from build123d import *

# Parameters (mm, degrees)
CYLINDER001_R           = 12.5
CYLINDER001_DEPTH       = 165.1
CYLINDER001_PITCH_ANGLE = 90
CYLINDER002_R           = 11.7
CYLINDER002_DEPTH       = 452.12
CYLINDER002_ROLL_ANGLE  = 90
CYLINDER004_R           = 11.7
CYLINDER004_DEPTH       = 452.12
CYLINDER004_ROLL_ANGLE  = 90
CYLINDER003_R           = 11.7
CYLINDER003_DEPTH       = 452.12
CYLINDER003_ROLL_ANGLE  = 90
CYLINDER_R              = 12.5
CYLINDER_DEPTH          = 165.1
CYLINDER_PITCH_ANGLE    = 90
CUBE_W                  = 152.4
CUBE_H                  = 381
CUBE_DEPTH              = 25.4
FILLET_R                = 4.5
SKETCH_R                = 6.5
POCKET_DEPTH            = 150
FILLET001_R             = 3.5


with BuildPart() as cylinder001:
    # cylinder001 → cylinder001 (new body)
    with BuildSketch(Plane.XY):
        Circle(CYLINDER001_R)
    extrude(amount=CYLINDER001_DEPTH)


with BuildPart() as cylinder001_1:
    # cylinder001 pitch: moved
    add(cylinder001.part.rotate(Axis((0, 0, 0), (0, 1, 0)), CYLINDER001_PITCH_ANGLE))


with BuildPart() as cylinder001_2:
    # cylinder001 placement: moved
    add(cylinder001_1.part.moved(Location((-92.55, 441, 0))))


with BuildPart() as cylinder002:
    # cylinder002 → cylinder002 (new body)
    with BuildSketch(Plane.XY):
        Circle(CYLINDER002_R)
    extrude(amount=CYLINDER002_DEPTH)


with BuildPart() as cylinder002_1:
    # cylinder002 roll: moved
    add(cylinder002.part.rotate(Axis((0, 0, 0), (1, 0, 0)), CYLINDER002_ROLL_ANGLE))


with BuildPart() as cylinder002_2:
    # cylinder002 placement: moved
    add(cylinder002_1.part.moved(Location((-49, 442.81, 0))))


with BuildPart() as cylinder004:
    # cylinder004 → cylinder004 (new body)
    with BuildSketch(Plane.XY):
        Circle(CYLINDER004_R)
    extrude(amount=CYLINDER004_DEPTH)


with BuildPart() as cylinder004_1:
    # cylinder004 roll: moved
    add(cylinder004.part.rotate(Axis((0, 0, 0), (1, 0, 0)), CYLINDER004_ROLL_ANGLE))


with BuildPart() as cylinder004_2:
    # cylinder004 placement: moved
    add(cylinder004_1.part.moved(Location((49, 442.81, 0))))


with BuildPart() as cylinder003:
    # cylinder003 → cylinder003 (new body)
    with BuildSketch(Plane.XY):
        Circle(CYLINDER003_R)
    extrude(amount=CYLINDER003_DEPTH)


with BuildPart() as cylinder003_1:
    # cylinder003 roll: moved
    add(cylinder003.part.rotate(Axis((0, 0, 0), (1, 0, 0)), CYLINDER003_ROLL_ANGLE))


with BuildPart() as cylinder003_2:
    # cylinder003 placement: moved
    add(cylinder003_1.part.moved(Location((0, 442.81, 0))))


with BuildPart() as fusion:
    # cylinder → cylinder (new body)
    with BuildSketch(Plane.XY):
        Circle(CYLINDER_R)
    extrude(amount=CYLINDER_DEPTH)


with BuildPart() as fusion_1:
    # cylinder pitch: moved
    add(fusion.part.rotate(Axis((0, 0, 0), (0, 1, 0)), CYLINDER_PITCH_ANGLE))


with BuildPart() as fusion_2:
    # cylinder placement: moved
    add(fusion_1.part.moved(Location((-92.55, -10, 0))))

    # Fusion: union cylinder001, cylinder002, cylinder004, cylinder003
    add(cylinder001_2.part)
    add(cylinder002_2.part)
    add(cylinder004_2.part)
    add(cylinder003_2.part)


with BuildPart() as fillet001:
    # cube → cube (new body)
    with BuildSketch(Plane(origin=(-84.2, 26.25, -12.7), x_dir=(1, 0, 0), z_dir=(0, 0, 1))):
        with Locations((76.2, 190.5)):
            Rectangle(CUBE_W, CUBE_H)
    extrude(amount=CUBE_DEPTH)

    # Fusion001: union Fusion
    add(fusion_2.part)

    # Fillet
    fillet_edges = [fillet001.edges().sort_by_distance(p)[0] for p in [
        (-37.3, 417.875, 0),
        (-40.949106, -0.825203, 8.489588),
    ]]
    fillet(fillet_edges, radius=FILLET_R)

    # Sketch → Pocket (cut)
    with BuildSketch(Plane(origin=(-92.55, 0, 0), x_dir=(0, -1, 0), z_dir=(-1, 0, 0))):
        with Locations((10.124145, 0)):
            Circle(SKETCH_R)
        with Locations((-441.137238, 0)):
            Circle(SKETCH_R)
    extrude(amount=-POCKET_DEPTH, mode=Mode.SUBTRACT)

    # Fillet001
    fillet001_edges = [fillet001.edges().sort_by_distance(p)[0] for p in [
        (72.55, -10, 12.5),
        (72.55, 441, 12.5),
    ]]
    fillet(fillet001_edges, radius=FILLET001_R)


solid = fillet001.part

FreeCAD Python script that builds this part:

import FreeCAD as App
import Part
import Sketcher
Q = App.Units.Quantity


def edges_at(feature, points):
    """Names of the edges that pass closest to the given points."""
    edges = feature.Shape.Edges
    near = lambda p: min(range(len(edges)), key=lambda i: edges[i].distToShape(Part.Vertex(*p))[0])
    return sorted({f"Edge{near(p) + 1}" for p in points})

doc = App.newDocument("Part")
body = doc.addObject("PartDesign::Body", "Body")

sketch1 = body.newObject("Sketcher::SketchObject", "Sketch")
sketch1.AttachmentSupport = (doc.getObject("XY_Plane"), [""])
sketch1.MapMode = "FlatFace"
sketch1.addGeometry(Part.Circle(App.Vector(0, 0, 0), App.Vector(0, 0, 1), 12), False)
sketch1.addConstraint([
    Sketcher.Constraint("Coincident", 0, 3, -1, 1),
    Sketcher.Constraint("Diameter", 0, Q("25 mm")),
])
pad1 = body.newObject("PartDesign::Pad", "Pad")
pad1.Profile = sketch1
pad1.Length = 165.1
body2 = doc.addObject("PartDesign::Body", "Body001")
doc.recompute()

body.Placement = App.Placement(App.Vector(0, 0, 0), App.Rotation(App.Vector(0, 1, 0), 90))
boolean = body2.newObject("PartDesign::Boolean", "Boolean")
boolean.Type = "Fuse"
boolean.addObjects([body])
body3 = doc.addObject("PartDesign::Body", "Body002")
doc.recompute()

body2.Placement = App.Placement(App.Vector(-92.55, 441, 0), App.Rotation(App.Vector(0, 0, 1), 0))
boolean2 = body3.newObject("PartDesign::Boolean", "Boolean001")
boolean2.Type = "Fuse"
boolean2.addObjects([body2])
body4 = doc.addObject("PartDesign::Body", "Body003")

sketch2 = body4.newObject("Sketcher::SketchObject", "Sketch001")
sketch2.AttachmentSupport = (doc.getObject("XY_Plane003"), [""])
sketch2.MapMode = "FlatFace"
sketch2.addGeometry(Part.Circle(App.Vector(0, 0, 0), App.Vector(0, 0, 1), 12), False)
sketch2.addConstraint([
    Sketcher.Constraint("Coincident", 0, 3, -1, 1),
    Sketcher.Constraint("Diameter", 0, Q("23.4 mm")),
])
pad2 = body4.newObject("PartDesign::Pad", "Pad001")
pad2.Profile = sketch2
pad2.Length = 452.12
body5 = doc.addObject("PartDesign::Body", "Body004")
doc.recompute()

body4.Placement = App.Placement(App.Vector(0, 0, 0), App.Rotation(App.Vector(1, 0, 0), 90))
boolean3 = body5.newObject("PartDesign::Boolean", "Boolean002")
boolean3.Type = "Fuse"
boolean3.addObjects([body4])
body6 = doc.addObject("PartDesign::Body", "Body005")
doc.recompute()

body5.Placement = App.Placement(App.Vector(-49, 442.81, 0), App.Rotation(App.Vector(0, 0, 1), 0))
boolean4 = body6.newObject("PartDesign::Boolean", "Boolean003")
boolean4.Type = "Fuse"
boolean4.addObjects([body5])
body7 = doc.addObject("PartDesign::Body", "Body006")

sketch3 = body7.newObject("Sketcher::SketchObject", "Sketch002")
sketch3.AttachmentSupport = (doc.getObject("XY_Plane006"), [""])
sketch3.MapMode = "FlatFace"
sketch3.addGeometry(Part.Circle(App.Vector(0, 0, 0), App.Vector(0, 0, 1), 12), False)
sketch3.addConstraint([
    Sketcher.Constraint("Coincident", 0, 3, -1, 1),
    Sketcher.Constraint("Diameter", 0, Q("23.4 mm")),
])
pad3 = body7.newObject("PartDesign::Pad", "Pad002")
pad3.Profile = sketch3
pad3.Length = 452.12
body8 = doc.addObject("PartDesign::Body", "Body007")
doc.recompute()

body7.Placement = App.Placement(App.Vector(0, 0, 0), App.Rotation(App.Vector(1, 0, 0), 90))
boolean5 = body8.newObject("PartDesign::Boolean", "Boolean004")
boolean5.Type = "Fuse"
boolean5.addObjects([body7])
body9 = doc.addObject("PartDesign::Body", "Body008")
doc.recompute()

body8.Placement = App.Placement(App.Vector(49, 442.81, 0), App.Rotation(App.Vector(0, 0, 1), 0))
boolean6 = body9.newObject("PartDesign::Boolean", "Boolean005")
boolean6.Type = "Fuse"
boolean6.addObjects([body8])
body10 = doc.addObject("PartDesign::Body", "Body009")

sketch4 = body10.newObject("Sketcher::SketchObject", "Sketch003")
sketch4.AttachmentSupport = (doc.getObject("XY_Plane009"), [""])
sketch4.MapMode = "FlatFace"
sketch4.addGeometry(Part.Circle(App.Vector(0, 0, 0), App.Vector(0, 0, 1), 12), False)
sketch4.addConstraint([
    Sketcher.Constraint("Coincident", 0, 3, -1, 1),
    Sketcher.Constraint("Diameter", 0, Q("23.4 mm")),
])
pad4 = body10.newObject("PartDesign::Pad", "Pad003")
pad4.Profile = sketch4
pad4.Length = 452.12
body11 = doc.addObject("PartDesign::Body", "Body010")
doc.recompute()

body10.Placement = App.Placement(App.Vector(0, 0, 0), App.Rotation(App.Vector(1, 0, 0), 90))
boolean7 = body11.newObject("PartDesign::Boolean", "Boolean006")
boolean7.Type = "Fuse"
boolean7.addObjects([body10])
body12 = doc.addObject("PartDesign::Body", "Body011")
doc.recompute()

body11.Placement = App.Placement(App.Vector(0, 442.81, 0), App.Rotation(App.Vector(0, 0, 1), 0))
boolean8 = body12.newObject("PartDesign::Boolean", "Boolean007")
boolean8.Type = "Fuse"
boolean8.addObjects([body11])
body13 = doc.addObject("PartDesign::Body", "Body012")

sketch5 = body13.newObject("Sketcher::SketchObject", "Sketch004")
sketch5.AttachmentSupport = (doc.getObject("XY_Plane012"), [""])
sketch5.MapMode = "FlatFace"
sketch5.addGeometry(Part.Circle(App.Vector(0, 0, 0), App.Vector(0, 0, 1), 12), False)
sketch5.addConstraint([
    Sketcher.Constraint("Coincident", 0, 3, -1, 1),
    Sketcher.Constraint("Diameter", 0, Q("25 mm")),
])
pad5 = body13.newObject("PartDesign::Pad", "Pad004")
pad5.Profile = sketch5
pad5.Length = 165.1
body14 = doc.addObject("PartDesign::Body", "Body013")
doc.recompute()

body13.Placement = App.Placement(App.Vector(0, 0, 0), App.Rotation(App.Vector(0, 1, 0), 90))
boolean9 = body14.newObject("PartDesign::Boolean", "Boolean008")
boolean9.Type = "Fuse"
boolean9.addObjects([body13])
body15 = doc.addObject("PartDesign::Body", "Body014")
body15.AllowCompound = True
doc.recompute()

body14.Placement = App.Placement(App.Vector(-92.55, -10, 0), App.Rotation(App.Vector(0, 0, 1), 0))
boolean10 = body15.newObject("PartDesign::Boolean", "Boolean009")
boolean10.Type = "Fuse"
boolean10.addObjects([body14])
doc.recompute()

boolean11 = body15.newObject("PartDesign::Boolean", "Boolean010")
boolean11.Type = "Fuse"
boolean11.addObjects([body3])
doc.recompute()

boolean12 = body15.newObject("PartDesign::Boolean", "Boolean011")
boolean12.Type = "Fuse"
boolean12.addObjects([body6])
doc.recompute()

boolean13 = body15.newObject("PartDesign::Boolean", "Boolean012")
boolean13.Type = "Fuse"
boolean13.addObjects([body9])
doc.recompute()

boolean14 = body15.newObject("PartDesign::Boolean", "Boolean013")
boolean14.Type = "Fuse"
boolean14.addObjects([body12])
body16 = doc.addObject("PartDesign::Body", "Body015")

sketch6 = body16.newObject("Sketcher::SketchObject", "Sketch005")
sketch6.AttachmentSupport = (doc.getObject("XY_Plane015"), [""])
sketch6.MapMode = "FlatFace"
sketch6.AttachmentOffset = App.Placement(App.Vector(0, 0, -12.7), App.Rotation())
sketch6.addGeometry([
    Part.LineSegment(App.Vector(-84, 407, 0), App.Vector(-84, 26, 0)),
    Part.LineSegment(App.Vector(-84, 26, 0), App.Vector(68, 26, 0)),
    Part.LineSegment(App.Vector(68, 26, 0), App.Vector(68, 407, 0)),
    Part.LineSegment(App.Vector(68, 407, 0), App.Vector(-84, 407, 0)),
], False)
sketch6.addConstraint([
    Sketcher.Constraint("Coincident", 0, 2, 1, 1),
    Sketcher.Constraint("Coincident", 1, 2, 2, 1),
    Sketcher.Constraint("Coincident", 2, 2, 3, 1),
    Sketcher.Constraint("Coincident", 3, 2, 0, 1),
    Sketcher.Constraint("Vertical", 0),
    Sketcher.Constraint("Horizontal", 1),
    Sketcher.Constraint("Vertical", 2),
    Sketcher.Constraint("Horizontal", 3),
    Sketcher.Constraint("DistanceY", 0, 2, 0, 1, Q("381 mm")),
    Sketcher.Constraint("DistanceX", 1, 1, 1, 2, Q("152.4 mm")),
    Sketcher.Constraint("DistanceX", 0, 2, -1, 1, Q("84.2 mm")),
    Sketcher.Constraint("DistanceY", -1, 1, 0, 2, Q("26.25 mm")),
])
pad6 = body16.newObject("PartDesign::Pad", "Pad005")
pad6.Profile = sketch6
pad6.Length = 25.4
doc.recompute()

boolean15 = body16.newObject("PartDesign::Boolean", "Boolean014")
boolean15.Type = "Fuse"
boolean15.addObjects([body15])
doc.recompute()

fillet = body16.newObject("PartDesign::Fillet", "Fillet")
fillet.Base = (boolean15, edges_at(boolean15, [(-37.3, 417.875, 0), (-60.7, 2.5, 0)]))
fillet.Radius = 4.5

sketch7 = body16.newObject("Sketcher::SketchObject", "Sketch006")
sketch7.AttachmentSupport = (doc.getObject("YZ_Plane015"), [""])
sketch7.MapMode = "FlatFace"
sketch7.AttachmentOffset = App.Placement(App.Vector(0, 0, -92.55), App.Rotation())
sketch7.addGeometry([
    Part.Circle(App.Vector(-10, 0, 0), App.Vector(0, 0, 1), 6),
    Part.Circle(App.Vector(441, 0, 0), App.Vector(0, 0, 1), 6),
], False)
sketch7.addConstraint([
    Sketcher.Constraint("Equal", 0, 1),
    Sketcher.Constraint("PointOnObject", 0, 3, -1),
    Sketcher.Constraint("PointOnObject", 1, 3, -1),
    Sketcher.Constraint("Diameter", 0, Q("13 mm")),
    Sketcher.Constraint("DistanceX", -1, 1, 1, 3, Q("441.137238 mm")),
    Sketcher.Constraint("DistanceX", 0, 3, -1, 1, Q("10.124145 mm")),
])
pocket1 = body16.newObject("PartDesign::Pocket", "Pocket")
pocket1.Profile = sketch7
pocket1.Length = 150
pocket1.Reversed = True
doc.recompute()

fillet2 = body16.newObject("PartDesign::Fillet", "Fillet001")
fillet2.Base = (pocket1, edges_at(pocket1, [(72.55, -10, 12.5), (72.55, 441, 12.5)]))
fillet2.Radius = 3.5

doc.recompute()
